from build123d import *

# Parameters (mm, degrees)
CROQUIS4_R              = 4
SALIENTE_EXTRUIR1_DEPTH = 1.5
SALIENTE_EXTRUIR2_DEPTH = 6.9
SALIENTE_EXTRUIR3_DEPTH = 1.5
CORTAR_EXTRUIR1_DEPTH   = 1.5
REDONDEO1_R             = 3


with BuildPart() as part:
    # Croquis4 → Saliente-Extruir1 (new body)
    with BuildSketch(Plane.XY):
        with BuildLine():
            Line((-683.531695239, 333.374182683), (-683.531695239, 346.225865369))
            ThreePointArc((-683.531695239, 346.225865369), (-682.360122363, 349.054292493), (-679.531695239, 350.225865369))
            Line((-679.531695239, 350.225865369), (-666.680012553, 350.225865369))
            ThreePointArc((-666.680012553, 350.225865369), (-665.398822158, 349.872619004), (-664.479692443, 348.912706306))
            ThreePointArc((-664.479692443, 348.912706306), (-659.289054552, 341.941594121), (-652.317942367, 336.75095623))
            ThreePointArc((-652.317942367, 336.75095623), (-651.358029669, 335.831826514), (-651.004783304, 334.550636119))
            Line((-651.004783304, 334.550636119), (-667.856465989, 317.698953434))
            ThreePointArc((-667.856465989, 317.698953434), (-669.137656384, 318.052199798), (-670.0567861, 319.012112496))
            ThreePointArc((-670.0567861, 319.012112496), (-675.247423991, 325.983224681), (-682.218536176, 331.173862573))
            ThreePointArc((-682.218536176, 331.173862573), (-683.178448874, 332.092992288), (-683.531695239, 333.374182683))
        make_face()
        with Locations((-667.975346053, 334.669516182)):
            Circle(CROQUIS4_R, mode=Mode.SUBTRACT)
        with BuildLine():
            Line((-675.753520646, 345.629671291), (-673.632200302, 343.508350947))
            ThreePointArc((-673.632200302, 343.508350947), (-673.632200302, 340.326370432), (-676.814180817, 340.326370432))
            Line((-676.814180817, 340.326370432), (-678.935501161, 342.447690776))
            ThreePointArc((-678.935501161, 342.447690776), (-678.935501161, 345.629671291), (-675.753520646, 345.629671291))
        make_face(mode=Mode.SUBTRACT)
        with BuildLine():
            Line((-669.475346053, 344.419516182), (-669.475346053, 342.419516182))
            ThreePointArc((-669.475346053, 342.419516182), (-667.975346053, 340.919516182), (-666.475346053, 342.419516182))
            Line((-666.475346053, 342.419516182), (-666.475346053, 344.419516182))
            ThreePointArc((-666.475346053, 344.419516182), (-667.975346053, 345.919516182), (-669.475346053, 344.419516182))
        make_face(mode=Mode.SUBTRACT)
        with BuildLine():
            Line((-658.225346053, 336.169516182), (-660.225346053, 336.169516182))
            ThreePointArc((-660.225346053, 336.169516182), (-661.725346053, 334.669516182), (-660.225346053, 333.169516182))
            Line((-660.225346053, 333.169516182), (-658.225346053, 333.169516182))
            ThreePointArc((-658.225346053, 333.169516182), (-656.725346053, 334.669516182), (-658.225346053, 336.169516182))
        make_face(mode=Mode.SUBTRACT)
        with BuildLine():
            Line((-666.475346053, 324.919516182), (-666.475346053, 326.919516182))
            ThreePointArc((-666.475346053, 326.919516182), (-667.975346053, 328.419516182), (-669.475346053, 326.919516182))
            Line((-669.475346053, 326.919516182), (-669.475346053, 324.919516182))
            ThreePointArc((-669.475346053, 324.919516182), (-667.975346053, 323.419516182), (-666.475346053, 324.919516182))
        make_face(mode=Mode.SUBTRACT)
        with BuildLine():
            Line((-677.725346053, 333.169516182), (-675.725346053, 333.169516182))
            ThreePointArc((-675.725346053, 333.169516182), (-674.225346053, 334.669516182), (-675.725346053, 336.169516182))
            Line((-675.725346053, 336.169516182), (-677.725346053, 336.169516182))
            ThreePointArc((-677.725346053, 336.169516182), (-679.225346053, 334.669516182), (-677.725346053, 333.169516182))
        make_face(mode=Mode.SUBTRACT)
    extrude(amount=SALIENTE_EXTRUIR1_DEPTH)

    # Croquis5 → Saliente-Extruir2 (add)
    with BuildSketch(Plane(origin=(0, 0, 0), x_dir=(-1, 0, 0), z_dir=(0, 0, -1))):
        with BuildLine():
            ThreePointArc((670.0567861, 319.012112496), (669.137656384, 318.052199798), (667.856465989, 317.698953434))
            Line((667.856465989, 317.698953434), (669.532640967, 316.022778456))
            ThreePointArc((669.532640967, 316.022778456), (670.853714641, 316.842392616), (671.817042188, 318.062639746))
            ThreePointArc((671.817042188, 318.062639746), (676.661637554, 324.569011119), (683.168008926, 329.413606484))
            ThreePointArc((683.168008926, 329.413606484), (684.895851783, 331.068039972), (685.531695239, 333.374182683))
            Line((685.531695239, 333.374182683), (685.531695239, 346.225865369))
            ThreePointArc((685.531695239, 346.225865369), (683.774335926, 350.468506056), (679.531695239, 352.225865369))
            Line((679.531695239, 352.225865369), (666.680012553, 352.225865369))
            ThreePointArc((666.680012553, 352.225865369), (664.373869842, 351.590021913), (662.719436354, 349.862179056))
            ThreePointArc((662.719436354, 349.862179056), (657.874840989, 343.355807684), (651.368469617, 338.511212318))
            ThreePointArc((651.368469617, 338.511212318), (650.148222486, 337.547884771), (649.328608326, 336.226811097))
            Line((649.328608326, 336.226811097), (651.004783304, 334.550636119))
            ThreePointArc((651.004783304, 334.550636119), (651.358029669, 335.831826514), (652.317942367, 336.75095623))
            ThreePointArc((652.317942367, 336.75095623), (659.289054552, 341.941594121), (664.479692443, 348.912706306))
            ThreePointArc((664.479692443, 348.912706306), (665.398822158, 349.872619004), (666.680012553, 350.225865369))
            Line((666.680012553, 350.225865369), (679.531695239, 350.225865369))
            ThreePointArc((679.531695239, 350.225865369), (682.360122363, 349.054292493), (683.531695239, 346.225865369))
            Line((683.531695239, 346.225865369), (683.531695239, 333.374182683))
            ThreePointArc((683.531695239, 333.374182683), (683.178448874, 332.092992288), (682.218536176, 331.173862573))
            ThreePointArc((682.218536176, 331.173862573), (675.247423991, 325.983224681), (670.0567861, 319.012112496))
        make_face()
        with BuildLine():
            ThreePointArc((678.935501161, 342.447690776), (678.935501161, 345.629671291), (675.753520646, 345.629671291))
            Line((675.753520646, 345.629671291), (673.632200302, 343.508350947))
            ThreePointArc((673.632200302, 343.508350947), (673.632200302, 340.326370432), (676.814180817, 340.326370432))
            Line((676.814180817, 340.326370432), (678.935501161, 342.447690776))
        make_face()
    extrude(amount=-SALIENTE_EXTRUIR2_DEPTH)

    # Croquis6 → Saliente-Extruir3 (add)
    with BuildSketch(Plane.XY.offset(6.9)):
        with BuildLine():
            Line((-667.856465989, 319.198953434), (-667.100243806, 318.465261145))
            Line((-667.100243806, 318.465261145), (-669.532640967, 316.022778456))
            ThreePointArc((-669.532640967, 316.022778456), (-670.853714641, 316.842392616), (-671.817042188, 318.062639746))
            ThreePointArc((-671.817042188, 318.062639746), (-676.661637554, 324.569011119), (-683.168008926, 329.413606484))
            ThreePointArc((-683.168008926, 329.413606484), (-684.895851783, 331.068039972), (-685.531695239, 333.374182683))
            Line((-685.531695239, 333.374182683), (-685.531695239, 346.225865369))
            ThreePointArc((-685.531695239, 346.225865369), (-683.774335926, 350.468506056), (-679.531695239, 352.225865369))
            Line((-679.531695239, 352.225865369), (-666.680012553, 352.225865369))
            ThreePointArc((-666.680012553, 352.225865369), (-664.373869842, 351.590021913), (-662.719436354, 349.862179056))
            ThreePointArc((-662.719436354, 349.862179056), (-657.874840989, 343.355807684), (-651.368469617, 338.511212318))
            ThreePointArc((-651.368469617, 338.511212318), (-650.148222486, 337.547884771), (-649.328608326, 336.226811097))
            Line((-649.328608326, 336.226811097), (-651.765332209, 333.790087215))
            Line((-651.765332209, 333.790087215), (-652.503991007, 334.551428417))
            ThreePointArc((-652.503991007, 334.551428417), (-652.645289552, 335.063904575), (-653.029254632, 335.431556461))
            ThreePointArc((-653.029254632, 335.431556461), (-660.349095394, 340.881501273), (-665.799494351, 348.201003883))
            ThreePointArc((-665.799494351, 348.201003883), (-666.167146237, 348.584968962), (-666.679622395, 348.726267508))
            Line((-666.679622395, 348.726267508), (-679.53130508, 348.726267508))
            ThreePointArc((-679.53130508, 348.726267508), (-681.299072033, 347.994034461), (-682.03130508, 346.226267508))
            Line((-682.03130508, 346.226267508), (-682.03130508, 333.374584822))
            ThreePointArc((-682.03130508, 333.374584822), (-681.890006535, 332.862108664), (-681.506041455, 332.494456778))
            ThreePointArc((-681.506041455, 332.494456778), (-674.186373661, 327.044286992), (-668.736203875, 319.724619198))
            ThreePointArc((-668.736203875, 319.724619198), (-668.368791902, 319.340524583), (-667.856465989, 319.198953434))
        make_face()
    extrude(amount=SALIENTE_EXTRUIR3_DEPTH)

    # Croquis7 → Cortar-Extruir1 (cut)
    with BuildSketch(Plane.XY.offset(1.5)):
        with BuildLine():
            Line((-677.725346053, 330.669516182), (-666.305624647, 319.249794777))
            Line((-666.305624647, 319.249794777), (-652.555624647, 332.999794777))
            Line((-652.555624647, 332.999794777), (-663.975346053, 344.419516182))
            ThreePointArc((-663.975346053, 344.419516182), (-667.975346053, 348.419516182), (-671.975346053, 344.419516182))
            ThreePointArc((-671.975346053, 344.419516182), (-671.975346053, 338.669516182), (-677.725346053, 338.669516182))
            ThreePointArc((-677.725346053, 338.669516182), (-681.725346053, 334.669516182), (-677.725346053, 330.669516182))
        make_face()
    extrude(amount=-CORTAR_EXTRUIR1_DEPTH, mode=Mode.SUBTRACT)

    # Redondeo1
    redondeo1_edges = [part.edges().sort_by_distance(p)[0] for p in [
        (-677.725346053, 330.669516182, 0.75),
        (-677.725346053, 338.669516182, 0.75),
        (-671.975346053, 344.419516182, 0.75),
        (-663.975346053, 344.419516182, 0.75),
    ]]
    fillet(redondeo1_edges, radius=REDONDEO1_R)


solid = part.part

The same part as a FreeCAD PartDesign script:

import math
import FreeCAD as App
import Part
import Sketcher

V = App.Vector
Q = App.Units.Quantity


def edges_at(feature, points):
    """Names of the edges that pass closest to the given points."""
    edges = feature.Shape.Edges
    near = lambda p: min(range(len(edges)), key=lambda i: edges[i].distToShape(Part.Vertex(*p))[0])
    return sorted({f"Edge{near(p) + 1}" for p in points})

doc = App.newDocument("Part")
body = doc.addObject("PartDesign::Body", "Body")

# Sketch on XY plane
sketch1 = doc.addObject("Sketcher::SketchObject", "Sketch")
body.addObject(sketch1)
sketch1.AttachmentSupport = (doc.XY_Plane, [""])
sketch1.MapMode = "FlatFace"
sketch1.addGeometry([
    Part.LineSegment(V(-683.5, 346.2, 0), V(-683.5, 333.4, 0)),  # 0
    Part.ArcOfCircle(Part.Circle(V(-681, 333.4, 0), V(0, 0, 1), 2.5), math.radians(-180), math.radians(-118)),  # 1
    Part.ArcOfCircle(Part.Circle(V(-696.5, 304.8, 0), V(0, 0, 1), 30), math.radians(28), math.radians(62)),  # 2
    Part.ArcOfCircle(Part.Circle(V(-667.9, 320.2, 0), V(0, 0, 1), 2.5), math.radians(-152), math.radians(-90)),  # 3
    Part.LineSegment(V(-667.9, 317.7, 0), V(-651, 334.6, 0)),  # 4
    Part.ArcOfCircle(Part.Circle(V(-653.5, 334.6, 0), V(0, 0, 1), 2.5), math.radians(0), math.radians(62)),  # 5
    Part.ArcOfCircle(Part.Circle(V(-638.1, 363.2, 0), V(0, 0, 1), 30), math.radians(-152), math.radians(-118)),  # 6
    Part.ArcOfCircle(Part.Circle(V(-666.7, 347.7, 0), V(0, 0, 1), 2.5), math.radians(28), math.radians(90)),  # 7
    Part.LineSegment(V(-666.7, 350.2, 0), V(-679.5, 350.2, 0)),  # 8
    Part.ArcOfCircle(Part.Circle(V(-679.5, 346.2, 0), V(0, 0, 1), 4), math.radians(90), math.radians(180)),  # 9
    Part.ArcOfCircle(Part.Circle(V(-668, 324.9, 0), V(0, 0, 1), 1.5), math.radians(180), math.radians(360)),  # 10
    Part.LineSegment(V(-669.5, 324.9, 0), V(-669.5, 326.9, 0)),  # 11
    Part.ArcOfCircle(Part.Circle(V(-668, 326.9, 0), V(0, 0, 1), 1.5), math.radians(0), math.radians(180)),  # 12
    Part.LineSegment(V(-666.5, 326.9, 0), V(-666.5, 324.9, 0)),  # 13
    Part.ArcOfCircle(Part.Circle(V(-658.2, 334.7, 0), V(0, 0, 1), 1.5), math.radians(-90), math.radians(90)),  # 14
    Part.LineSegment(V(-658.2, 333.2, 0), V(-660.2, 333.2, 0)),  # 15
    Part.ArcOfCircle(Part.Circle(V(-660.2, 334.7, 0), V(0, 0, 1), 1.5), math.radians(90), math.radians(270)),  # 16
    Part.LineSegment(V(-660.2, 336.2, 0), V(-658.2, 336.2, 0)),  # 17
    Part.Circle(V(-668, 334.7, 0), V(0, 0, 1), 4),  # 18
    Part.ArcOfCircle(Part.Circle(V(-677.7, 334.7, 0), V(0, 0, 1), 1.5), math.radians(90), math.radians(270)),  # 19
    Part.LineSegment(V(-677.7, 336.2, 0), V(-675.7, 336.2, 0)),  # 20
    Part.ArcOfCircle(Part.Circle(V(-675.7, 334.7, 0), V(0, 0, 1), 1.5), math.radians(-90), math.radians(90)),  # 21
    Part.LineSegment(V(-675.7, 333.2, 0), V(-677.7, 333.2, 0)),  # 22
    Part.ArcOfCircle(Part.Circle(V(-668, 344.4, 0), V(0, 0, 1), 1.5), math.radians(0), math.radians(180)),  # 23
    Part.LineSegment(V(-666.5, 344.4, 0), V(-666.5, 342.4, 0)),  # 24
    Part.ArcOfCircle(Part.Circle(V(-668, 342.4, 0), V(0, 0, 1), 1.5), math.radians(180), math.radians(360)),  # 25
    Part.LineSegment(V(-669.5, 342.4, 0), V(-669.5, 344.4, 0)),  # 26
    Part.LineSegment(V(-675.8, 345.6, 0), V(-673.6, 343.5, 0)),  # 27
    Part.ArcOfCircle(Part.Circle(V(-675.2, 341.9, 0), V(0, 0, 1), 2.2), math.radians(-135), math.radians(45)),  # 28
    Part.LineSegment(V(-676.8, 340.3, 0), V(-678.9, 342.4, 0)),  # 29
    Part.ArcOfCircle(Part.Circle(V(-677.3, 344, 0), V(0, 0, 1), 2.2), math.radians(45), math.radians(225)),  # 30
], False)
sketch1.addConstraint([
    Sketcher.Constraint("Tangent", 0, 2, 1, 1),
    Sketcher.Constraint("Tangent", 1, 2, 2, 2),
    Sketcher.Constraint("Tangent", 2, 1, 3, 1),
    Sketcher.Constraint("Coincident", 3, 2, 4, 1),
    Sketcher.Constraint("Coincident", 4, 2, 5, 1),
    Sketcher.Constraint("Tangent", 5, 2, 6, 2),
    Sketcher.Constraint("Tangent", 6, 1, 7, 1),
    Sketcher.Constraint("Tangent", 7, 2, 8, 1),
    Sketcher.Constraint("Tangent", 8, 2, 9, 1),
    Sketcher.Constraint("Tangent", 9, 2, 0, 1),
    Sketcher.Constraint("Tangent", 10, 1, 11, 1),
    Sketcher.Constraint("Tangent", 11, 2, 12, 2),
    Sketcher.Constraint("Tangent", 12, 1, 13, 1),
    Sketcher.Constraint("Tangent", 13, 2, 10, 2),
    Sketcher.Constraint("Tangent", 14, 1, 15, 1),
    Sketcher.Constraint("Tangent", 15, 2, 16, 2),
    Sketcher.Constraint("Tangent", 16, 1, 17, 1),
    Sketcher.Constraint("Tangent", 17, 2, 14, 2),
    Sketcher.Constraint("Tangent", 19, 1, 20, 1),
    Sketcher.Constraint("Tangent", 20, 2, 21, 2),
    Sketcher.Constraint("Tangent", 21, 1, 22, 1),
    Sketcher.Constraint("Tangent", 22, 2, 19, 2),
    Sketcher.Constraint("Tangent", 23, 1, 24, 1),
    Sketcher.Constraint("Tangent", 24, 2, 25, 2),
    Sketcher.Constraint("Tangent", 25, 1, 26, 1),
    Sketcher.Constraint("Tangent", 26, 2, 23, 2),
    Sketcher.Constraint("Tangent", 27, 2, 28, 2),
    Sketcher.Constraint("Tangent", 28, 1, 29, 1),
    Sketcher.Constraint("Tangent", 29, 2, 30, 2),
    Sketcher.Constraint("Tangent", 30, 1, 27, 1),
    Sketcher.Constraint("Vertical", 0),
    Sketcher.Constraint("Horizontal", 8),
    Sketcher.Constraint("Vertical", 11),
    Sketcher.Constraint("Vertical", 13),
    Sketcher.Constraint("Horizontal", 15),
    Sketcher.Constraint("Horizontal", 17),
    Sketcher.Constraint("Horizontal", 20),
    Sketcher.Constraint("Horizontal", 22),
    Sketcher.Constraint("Vertical", 24),
    Sketcher.Constraint("Vertical", 26),
    Sketcher.Constraint("Equal", 1, 3),
    Sketcher.Constraint("Equal", 3, 5),
    Sketcher.Constraint("Equal", 2, 6),
    Sketcher.Constraint("Equal", 5, 7),
    Sketcher.Constraint("Equal", 12, 14),
    Sketcher.Constraint("Equal", 9, 18),
    Sketcher.Constraint("Equal", 16, 19),
    Sketcher.Constraint("Equal", 21, 23),
    Sketcher.Constraint("Equal", 28, 30),
    Sketcher.Constraint("Perpendicular", 4, 27),
    Sketcher.Constraint("Horizontal", 16, 3, 18, 3),
    Sketcher.Constraint("Horizontal", 18, 3, 19, 3),
    Sketcher.Constraint("Horizontal", 5, 3, 4, 2),
    Sketcher.Constraint("Vertical", 12, 3, 18, 3),
    Sketcher.Constraint("Vertical", 18, 3, 23, 3),
    Sketcher.Constraint("Equal", 17, 20),
    Sketcher.Constraint("Equal", 8, 0),
    Sketcher.Constraint("Equal", 22, 11),
    Sketcher.Constraint("Equal", 13, 24),
    Sketcher.Constraint("Diameter", 18, 8.0),
    Sketcher.Constraint("Radius", 2, 30.0),
    Sketcher.Constraint("Radius", 1, 2.5),
    Sketcher.Constraint("Radius", 10, 1.5),
    Sketcher.Constraint("DistanceX", 15, 2, 15, 1, 2.0),
    Sketcher.Constraint("Angle", 4, Q("45 deg")),
    Sketcher.Constraint("Radius", 28, 2.25),
    Sketcher.Constraint("Distance", 27, 3.0),
    Sketcher.Constraint("DistanceX", 12, 3, 14, 3, 9.75),
    Sketcher.Constraint("DistanceY", 12, 3, 14, 3, 7.75),
    Sketcher.Constraint("DistanceX", 19, 3, 18, 3, 9.75),
    Sketcher.Constraint("DistanceY", 18, 3, 23, 3, 9.75),
    Sketcher.Constraint("DistanceX", 27, 2, -1, 1, 673.6322),
    Sketcher.Constraint("DistanceY", 0, 2, 30, 3, 10.664498),
    Sketcher.Constraint("DistanceY", 1, 2, 28, 3, 10.743498),
    Sketcher.Constraint("DistanceX", 28, 3, 6, 1, 10.743498),
    Sketcher.Constraint("Distance", 4, 23.831878),
    Sketcher.Constraint("DistanceX", 8, 2, 8, 1, 12.851683),
    Sketcher.Constraint("DistanceY", -1, 1, 2, 3, 304.770021),
    Sketcher.Constraint("DistanceX", 6, 3, -1, 1, 638.075851),
    Sketcher.Constraint("DistanceX", 1, 3, 3, 3, 13.175229),
    Sketcher.Constraint("DistanceX", 10, 3, 3, 3, 0.11888),
    Sketcher.Constraint("DistanceY", 10, 3, 5, 3, 9.63112),
])
pad1 = doc.addObject("PartDesign::Pad", "Pad")
body.addObject(pad1)
pad1.Profile = sketch1
pad1.Length = 1.5

# Sketch on XY plane
sketch2 = doc.addObject("Sketcher::SketchObject", "Sketch001")
body.addObject(sketch2)
sketch2.AttachmentSupport = (doc.XY_Plane, [""])
sketch2.MapMode = "FlatFace"
sketch2.addGeometry([
    Part.ArcOfCircle(Part.Circle(V(-667.9, 320.2, 0), V(0, 0, 1), 2.5), math.radians(-152), math.radians(-90)),  # 0
    Part.LineSegment(V(-667.9, 317.7, 0), V(-669.5, 316, 0)),  # 1
    Part.ArcOfCircle(Part.Circle(V(-667.9, 320.2, 0), V(0, 0, 1), 4.5), math.radians(-152), math.radians(-112)),  # 2
    Part.ArcOfCircle(Part.Circle(V(-696.5, 304.8, 0), V(0, 0, 1), 28), math.radians(28), math.radians(62)),  # 3
    Part.ArcOfCircle(Part.Circle(V(-681, 333.4, 0), V(0, 0, 1), 4.5), math.radians(180), math.radians(242)),  # 4
    Part.LineSegment(V(-685.5, 333.4, 0), V(-685.5, 346.2, 0)),  # 5
    Part.ArcOfCircle(Part.Circle(V(-679.5, 346.2, 0), V(0, 0, 1), 6), math.radians(90), math.radians(180)),  # 6
    Part.LineSegment(V(-679.5, 352.2, 0), V(-666.7, 352.2, 0)),  # 7
    Part.ArcOfCircle(Part.Circle(V(-666.7, 347.7, 0), V(0, 0, 1), 4.5), math.radians(28), math.radians(90)),  # 8
    Part.ArcOfCircle(Part.Circle(V(-638.1, 363.2, 0), V(0, 0, 1), 28), math.radians(-152), math.radians(-118)),  # 9
    Part.ArcOfCircle(Part.Circle(V(-653.5, 334.6, 0), V(0, 0, 1), 4.5), math.radians(22), math.radians(62)),  # 10
    Part.LineSegment(V(-649.3, 336.2, 0), V(-651, 334.6, 0)),  # 11
    Part.ArcOfCircle(Part.Circle(V(-653.5, 334.6, 0), V(0, 0, 1), 2.5), math.radians(0), math.radians(62)),  # 12
    Part.ArcOfCircle(Part.Circle(V(-638.1, 363.2, 0), V(0, 0, 1), 30), math.radians(-152), math.radians(-118)),  # 13
    Part.ArcOfCircle(Part.Circle(V(-666.7, 347.7, 0), V(0, 0, 1), 2.5), math.radians(28), math.radians(90)),  # 14
    Part.LineSegment(V(-666.7, 350.2, 0), V(-679.5, 350.2, 0)),  # 15
    Part.ArcOfCircle(Part.Circle(V(-679.5, 346.2, 0), V(0, 0, 1), 4), math.radians(90), math.radians(180)),  # 16
    Part.LineSegment(V(-683.5, 346.2, 0), V(-683.5, 333.4, 0)),  # 17
    Part.ArcOfCircle(Part.Circle(V(-681, 333.4, 0), V(0, 0, 1), 2.5), math.radians(-180), math.radians(-118)),  # 18
    Part.ArcOfCircle(Part.Circle(V(-696.5, 304.8, 0), V(0, 0, 1), 30), math.radians(28), math.radians(62)),  # 19
    Part.ArcOfCircle(Part.Circle(V(-677.3, 344, 0), V(0, 0, 1), 2.2), math.radians(45), math.radians(225)),  # 20
    Part.LineSegment(V(-675.8, 345.6, 0), V(-673.6, 343.5, 0)),  # 21
    Part.ArcOfCircle(Part.Circle(V(-675.2, 341.9, 0), V(0, 0, 1), 2.2), math.radians(-135), math.radians(45)),  # 22
    Part.LineSegment(V(-676.8, 340.3, 0), V(-678.9, 342.4, 0)),  # 23
], False)
sketch2.addConstraint([
    Sketcher.Constraint("Coincident", 0, 2, 1, 1),
    Sketcher.Constraint("Coincident", 1, 2, 2, 2),
    Sketcher.Constraint("Tangent", 2, 1, 3, 1),
    Sketcher.Constraint("Tangent", 3, 2, 4, 2),
    Sketcher.Constraint("Tangent", 4, 1, 5, 1),
    Sketcher.Constraint("Tangent", 5, 2, 6, 2),
    Sketcher.Constraint("Tangent", 6, 1, 7, 1),
    Sketcher.Constraint("Tangent", 7, 2, 8, 2),
    Sketcher.Constraint("Tangent", 8, 1, 9, 1),
    Sketcher.Constraint("Tangent", 9, 2, 10, 2),
    Sketcher.Constraint("Coincident", 10, 1, 11, 1),
    Sketcher.Constraint("Coincident", 11, 2, 12, 1),
    Sketcher.Constraint("Tangent", 12, 2, 13, 2),
    Sketcher.Constraint("Tangent", 13, 1, 14, 1),
    Sketcher.Constraint("Tangent", 14, 2, 15, 1),
    Sketcher.Constraint("Tangent", 15, 2, 16, 1),
    Sketcher.Constraint("Tangent", 16, 2, 17, 1),
    Sketcher.Constraint("Tangent", 17, 2, 18, 1),
    Sketcher.Constraint("Tangent", 18, 2, 19, 2),
    Sketcher.Constraint("Tangent", 19, 1, 0, 1),
    Sketcher.Constraint("Tangent", 20, 1, 21, 1),
    Sketcher.Constraint("Tangent", 21, 2, 22, 2),
    Sketcher.Constraint("Tangent", 22, 1, 23, 1),
    Sketcher.Constraint("Tangent", 23, 2, 20, 2),
    Sketcher.Constraint("Vertical", 5),
    Sketcher.Constraint("Horizontal", 7),
    Sketcher.Constraint("Horizontal", 15),
    Sketcher.Constraint("Vertical", 17),
    Sketcher.Constraint("Coincident", 2, 3, 0, 3),
    Sketcher.Constraint("Coincident", 12, 3, 10, 3),
    Sketcher.Constraint("Coincident", 13, 3, 9, 3),
    Sketcher.Constraint("Coincident", 14, 3, 8, 3),
    Sketcher.Constraint("Coincident", 16, 3, 6, 3),
    Sketcher.Constraint("Coincident", 18, 3, 4, 3),
    Sketcher.Constraint("Coincident", 19, 3, 3, 3),
    Sketcher.Constraint("Equal", 2, 4),
    Sketcher.Constraint("Equal", 4, 8),
    Sketcher.Constraint("Equal", 3, 9),
    Sketcher.Constraint("Equal", 8, 10),
    Sketcher.Constraint("Equal", 20, 22),
    Sketcher.Constraint("Parallel", 1, 11),
    Sketcher.Constraint("Perpendicular", 11, 21),
    Sketcher.Constraint("Horizontal", 12, 3, 11, 2),
    Sketcher.Constraint("Vertical", 2, 3, 0, 2),
    Sketcher.Constraint("Equal", 15, 5),
    Sketcher.Constraint("Equal", 1, 11),
    Sketcher.Constraint("Radius", 3, 28.0),
    Sketcher.Constraint("Radius", 6, 6.0),
    Sketcher.Constraint("Radius", 13, 30.0),
    Sketcher.Constraint("Radius", 0, 2.5),
    Sketcher.Constraint("Radius", 20, 2.25),
    Sketcher.Constraint("Distance", 21, 3.0),
    Sketcher.Constraint("DistanceX", 21, 2, -1, 1, 673.6322),
    Sketcher.Constraint("DistanceY", 18, 3, 20, 3, 10.664498),
    Sketcher.Constraint("DistanceX", 20, 3, 14, 3, 10.664498),
    Sketcher.Constraint("DistanceX", 2, 1, 1, 2, 2.284401),
    Sketcher.Constraint("DistanceX", 3, 2, 20, 3, 5.823498),
    Sketcher.Constraint("DistanceY", 20, 3, 8, 1, 5.823498),
    Sketcher.Constraint("DistanceY", 10, 1, 9, 2, 2.284401),
    Sketcher.Constraint("DistanceX", 7, 1, 7, 2, 12.851683),
    Sketcher.Constraint("DistanceY", -1, 1, 3, 3, 304.770021),
])
pad2 = doc.addObject("PartDesign::Pad", "Pad001")
body.addObject(pad2)
pad2.Profile = sketch2
pad2.Length = 6.9

# Sketch on XY plane
sketch3 = doc.addObject("Sketcher::SketchObject", "Sketch002")
body.addObject(sketch3)
sketch3.AttachmentSupport = (doc.XY_Plane, [""])
sketch3.MapMode = "FlatFace"
sketch3.AttachmentOffset = App.Placement(V(0, 0, 6.9), App.Rotation())
sketch3.addGeometry([
    Part.LineSegment(V(-667.100244, 318.465261, 0), V(-667.856466, 319.198953, 0)),  # 0
    Part.ArcOfCircle(Part.Circle(V(-667.855859, 320.198953, 0), V(0, 0, 1), 1), math.radians(-151.684001), math.radians(-90.034781)),  # 1
    Part.ArcOfCircle(Part.Circle(V(-696.460237, 304.770423, 0), V(0, 0, 1), 31.5), math.radians(28.342187), math.radians(61.657813)),  # 2
    Part.ArcOfCircle(Part.Circle(V(-681.031305, 333.374585, 0), V(0, 0, 1), 1), math.radians(180), math.radians(241.657813)),  # 3
    Part.LineSegment(V(-682.031305, 333.374585, 0), V(-682.031305, 346.226268, 0)),  # 4
    Part.ArcOfCircle(Part.Circle(V(-679.531305, 346.226268, 0), V(0, 0, 1), 2.5), math.radians(90), math.radians(180)),  # 5
    Part.LineSegment(V(-679.531305, 348.726268, 0), V(-666.679622, 348.726268, 0)),  # 6
    Part.ArcOfCircle(Part.Circle(V(-666.679622, 347.726268, 0), V(0, 0, 1), 1), math.radians(28.342187), math.radians(90)),  # 7
    Part.ArcOfCircle(Part.Circle(V(-638.075923, 363.156056, 0), V(0, 0, 1), 31.5), math.radians(-151.656044), math.radians(-118.340401)),  # 8
    Part.ArcOfCircle(Part.Circle(V(-653.503991, 334.551428, 0), V(0, 0, 1), 1), math.radians(0), math.radians(61.657813)),  # 9
    Part.LineSegment(V(-652.503991, 334.551428, 0), V(-651.765332, 333.790087, 0)),  # 10
    Part.LineSegment(V(-651.765332, 333.790087, 0), V(-649.328608, 336.226811, 0)),  # 11
    Part.ArcOfCircle(Part.Circle(V(-653.504783, 334.550636, 0), V(0, 0, 1), 4.5), math.radians(21.868852), math.radians(61.657813)),  # 12
    Part.ArcOfCircle(Part.Circle(V(-638.075851, 363.154798, 0), V(0, 0, 1), 28), math.radians(-151.657813), math.radians(-118.342187)),  # 13
    Part.ArcOfCircle(Part.Circle(V(-666.680013, 347.725865, 0), V(0, 0, 1), 4.5), math.radians(28.342187), math.radians(90)),  # 14
    Part.LineSegment(V(-666.680013, 352.225865, 0), V(-679.531695, 352.225865, 0)),  # 15
    Part.ArcOfCircle(Part.Circle(V(-679.531695, 346.225865, 0), V(0, 0, 1), 6), math.radians(90), math.radians(180)),  # 16
    Part.LineSegment(V(-685.531695, 346.225865, 0), V(-685.531695, 333.374183, 0)),  # 17
    Part.ArcOfCircle(Part.Circle(V(-681.031695, 333.374183, 0), V(0, 0, 1), 4.5), math.radians(180), math.radians(241.657813)),  # 18
    Part.ArcOfCircle(Part.Circle(V(-696.460627, 304.770021, 0), V(0, 0, 1), 28), math.radians(28.342187), math.radians(61.657813)),  # 19
    Part.ArcOfCircle(Part.Circle(V(-667.856466, 320.198953, 0), V(0, 0, 1), 4.5), math.radians(-151.657813), math.radians(-111.868852)),  # 20
    Part.LineSegment(V(-669.532641, 316.022778, 0), V(-667.100244, 318.465261, 0)),  # 21
], False)
sketch3.addConstraint([
    Sketcher.Constraint("Coincident", 0, 2, 1, 2),
    Sketcher.Constraint("Coincident", 1, 1, 2, 1),
    Sketcher.Constraint("Coincident", 2, 2, 3, 2),
    Sketcher.Constraint("Coincident", 3, 1, 4, 1),
    Sketcher.Constraint("Coincident", 4, 2, 5, 2),
    Sketcher.Constraint("Coincident", 5, 1, 6, 1),
    Sketcher.Constraint("Coincident", 6, 2, 7, 2),
    Sketcher.Constraint("Coincident", 7, 1, 8, 1),
    Sketcher.Constraint("Coincident", 8, 2, 9, 2),
    Sketcher.Constraint("Coincident", 9, 1, 10, 1),
    Sketcher.Constraint("Coincident", 10, 2, 11, 1),
    Sketcher.Constraint("Coincident", 11, 2, 12, 1),
    Sketcher.Constraint("Coincident", 12, 2, 13, 2),
    Sketcher.Constraint("Coincident", 13, 1, 14, 1),
    Sketcher.Constraint("Coincident", 14, 2, 15, 1),
    Sketcher.Constraint("Coincident", 15, 2, 16, 1),
    Sketcher.Constraint("Coincident", 16, 2, 17, 1),
    Sketcher.Constraint("Coincident", 17, 2, 18, 1),
    Sketcher.Constraint("Coincident", 18, 2, 19, 2),
    Sketcher.Constraint("Coincident", 19, 1, 20, 1),
    Sketcher.Constraint("Coincident", 20, 2, 21, 1),
    Sketcher.Constraint("Coincident", 21, 2, 0, 1),
    Sketcher.Constraint("Vertical", 4),
    Sketcher.Constraint("Horizontal", 6),
    Sketcher.Constraint("Horizontal", 15),
    Sketcher.Constraint("Vertical", 17),
    Sketcher.Constraint("Radius", 1, 1.0),
    Sketcher.Constraint("Radius", 3, 1.0),
    Sketcher.Constraint("Radius", 7, 1.0),
    Sketcher.Constraint("Radius", 9, 1.0),
    Sketcher.Constraint("Radius", 13, 28.0),
    Sketcher.Constraint("Radius", 16, 6.0),
    Sketcher.Constraint("Radius", 19, 28.0),
    Sketcher.Constraint("Radius", 2, 31.5),
    Sketcher.Constraint("Radius", 5, 2.5),
    Sketcher.Constraint("Radius", 8, 31.5),
    Sketcher.Constraint("Radius", 12, 4.5),
    Sketcher.Constraint("Radius", 14, 4.5),
    Sketcher.Constraint("Radius", 18, 4.5),
    Sketcher.Constraint("Radius", 20, 4.5),
    Sketcher.Constraint("DistanceY", 0, 2, 20, 3, 1.0),
    Sketcher.Constraint("DistanceX", 16, 2, 15, 2, 6.0),
    Sketcher.Constraint("DistanceY", 16, 2, 15, 2, 6.0),
    Sketcher.Constraint("DistanceX", 4, 2, 5, 1, 2.5),
    Sketcher.Constraint("DistanceY", 4, 2, 5, 1, 2.5),
    Sketcher.Constraint("DistanceX", 7, 3, 8, 3, 28.6037),
    Sketcher.Constraint("DistanceX", 3, 3, 1, 1, 12.295101),
    Sketcher.Constraint("DistanceY", 11, 2, 12, 2, 2.284401),
    Sketcher.Constraint("DistanceX", 19, 1, 20, 2, 2.284401),
    Sketcher.Constraint("Distance", 0, 1.053649),
    Sketcher.Constraint("Distance", 10, 1.060781),
    Sketcher.Constraint("DistanceX", 6, 1, 6, 2, 12.851683),
    Sketcher.Constraint("DistanceX", 15, 2, 15, 1, 12.851683),
    Sketcher.Constraint("DistanceY", 4, 1, 4, 2, 12.851683),
    Sketcher.Constraint("DistanceY", 17, 2, 17, 1, 12.851683),
    Sketcher.Constraint("DistanceX", 1, 3, -1, 1, 667.855859),
    Sketcher.Constraint("DistanceX", 9, 3, -1, 1, 653.503991),
    Sketcher.Constraint("DistanceY", -1, 1, 9, 3, 334.551428),
    Sketcher.Constraint("DistanceX", 13, 3, -1, 1, 638.075851),
    Sketcher.Constraint("DistanceY", -1, 1, 19, 3, 304.770021),
    Sketcher.Constraint("DistanceY", -1, 1, 1, 1, 319.724619),
    Sketcher.Constraint("DistanceX", 2, 2, -1, 1, 681.506041),
    Sketcher.Constraint("DistanceY", -1, 1, 9, 1, 334.551428),
    Sketcher.Constraint("DistanceX", 11, 2, -1, 1, 649.328608),
    Sketcher.Constraint("DistanceY", -1, 1, 11, 2, 336.226811),
    Sketcher.Constraint("DistanceX", 12, 2, -1, 1, 651.36847),
    Sketcher.Constraint("DistanceY", -1, 1, 13, 1, 349.862179),
    Sketcher.Constraint("DistanceX", 18, 2, -1, 1, 683.168009),
    Sketcher.Constraint("DistanceY", -1, 1, 19, 1, 318.06264),
    Sketcher.Constraint("DistanceX", 20, 2, -1, 1, 669.532641),
    Sketcher.Constraint("DistanceY", -1, 1, 20, 2, 316.022778),
    Sketcher.Constraint("DistanceY", -1, 1, 21, 2, 318.465261),
    Sketcher.Constraint("DistanceX", 2, 3, 1, 3, 28.604378),
    Sketcher.Constraint("DistanceY", 3, 3, 8, 3, 29.781471),
    Sketcher.Constraint("DistanceX", 14, 3, 7, 3, 0.00039),
    Sketcher.Constraint("DistanceX", 16, 3, 5, 3, 0.00039),
    Sketcher.Constraint("DistanceX", 18, 3, 0, 2, 13.175229),
    Sketcher.Constraint("DistanceX", 7, 3, 7, 1, 0.880128),
    Sketcher.Constraint("DistanceY", 9, 3, 8, 2, 0.880128),
    Sketcher.Constraint("DistanceX", 9, 1, 10, 2, 0.738659),
])
pad3 = doc.addObject("PartDesign::Pad", "Pad002")
body.addObject(pad3)
pad3.Profile = sketch3
pad3.Length = 1.5

# Sketch on XY plane
sketch4 = doc.addObject("Sketcher::SketchObject", "Sketch003")
body.addObject(sketch4)
sketch4.AttachmentSupport = (doc.XY_Plane, [""])
sketch4.MapMode = "FlatFace"
sketch4.AttachmentOffset = App.Placement(V(0, 0, 1.5), App.Rotation())
sketch4.addGeometry([
    Part.LineSegment(V(-677.7, 330.7, 0), V(-666.3, 319.2, 0)),  # 0
    Part.LineSegment(V(-666.3, 319.2, 0), V(-652.6, 333, 0)),  # 1
    Part.LineSegment(V(-652.6, 333, 0), V(-664, 344.4, 0)),  # 2
    Part.ArcOfCircle(Part.Circle(V(-668, 344.4, 0), V(0, 0, 1), 4), math.radians(0), math.radians(180)),  # 3
    Part.ArcOfCircle(Part.Circle(V(-674.9, 341.5, 0), V(0, 0, 1), 4.1), math.radians(-135), math.radians(45)),  # 4
    Part.ArcOfCircle(Part.Circle(V(-677.7, 334.7, 0), V(0, 0, 1), 4), math.radians(90), math.radians(270)),  # 5
], False)
sketch4.addConstraint([
    Sketcher.Constraint("Coincident", 0, 2, 1, 1),
    Sketcher.Constraint("Coincident", 1, 2, 2, 1),
    Sketcher.Constraint("Coincident", 2, 2, 3, 1),
    Sketcher.Constraint("Coincident", 3, 2, 4, 2),
    Sketcher.Constraint("Coincident", 4, 1, 5, 1),
    Sketcher.Constraint("Coincident", 5, 2, 0, 1),
    Sketcher.Constraint("Equal", 3, 5),
    Sketcher.Constraint("Perpendicular", 0, 1),
    Sketcher.Constraint("Perpendicular", 1, 2),
    Sketcher.Constraint("Horizontal", 3, 3, 2, 2),
    Sketcher.Constraint("Horizontal", 2, 2, 3, 2),
    Sketcher.Constraint("Vertical", 5, 3, 4, 1),
    Sketcher.Constraint("Vertical", 4, 1, 5, 2),
    Sketcher.Constraint("Equal", 0, 2),
    Sketcher.Constraint("Radius", 3, 4.0),
    Sketcher.Constraint("Angle", 0, Q("-45 deg")),
    Sketcher.Constraint("DistanceX", 5, 3, 3, 3, 9.75),
    Sketcher.Constraint("DistanceX", 4, 3, 3, 3, 6.875),
    Sketcher.Constraint("DistanceX", 5, 3, 0, 2, 11.419721),
    Sketcher.Constraint("DistanceX", 3, 3, -1, 1, 667.975346),
    Sketcher.Constraint("DistanceY", -1, 1, 3, 3, 344.419516),
])
pocket1 = doc.addObject("PartDesign::Pocket", "Pocket")
body.addObject(pocket1)
pocket1.Profile = sketch4
pocket1.Length = 1.5
doc.recompute()

fillet = doc.addObject("PartDesign::Fillet", "Fillet")
body.addObject(fillet)
fillet.Base = (pocket1, edges_at(pocket1, [
    (-677.725, 330.67, 0.75),
    (-677.725, 338.67, 0.75),
    (-671.975, 344.42, 0.75),
    (-663.975, 344.42, 0.75),
]))
fillet.Radius = 3

doc.recompute()
